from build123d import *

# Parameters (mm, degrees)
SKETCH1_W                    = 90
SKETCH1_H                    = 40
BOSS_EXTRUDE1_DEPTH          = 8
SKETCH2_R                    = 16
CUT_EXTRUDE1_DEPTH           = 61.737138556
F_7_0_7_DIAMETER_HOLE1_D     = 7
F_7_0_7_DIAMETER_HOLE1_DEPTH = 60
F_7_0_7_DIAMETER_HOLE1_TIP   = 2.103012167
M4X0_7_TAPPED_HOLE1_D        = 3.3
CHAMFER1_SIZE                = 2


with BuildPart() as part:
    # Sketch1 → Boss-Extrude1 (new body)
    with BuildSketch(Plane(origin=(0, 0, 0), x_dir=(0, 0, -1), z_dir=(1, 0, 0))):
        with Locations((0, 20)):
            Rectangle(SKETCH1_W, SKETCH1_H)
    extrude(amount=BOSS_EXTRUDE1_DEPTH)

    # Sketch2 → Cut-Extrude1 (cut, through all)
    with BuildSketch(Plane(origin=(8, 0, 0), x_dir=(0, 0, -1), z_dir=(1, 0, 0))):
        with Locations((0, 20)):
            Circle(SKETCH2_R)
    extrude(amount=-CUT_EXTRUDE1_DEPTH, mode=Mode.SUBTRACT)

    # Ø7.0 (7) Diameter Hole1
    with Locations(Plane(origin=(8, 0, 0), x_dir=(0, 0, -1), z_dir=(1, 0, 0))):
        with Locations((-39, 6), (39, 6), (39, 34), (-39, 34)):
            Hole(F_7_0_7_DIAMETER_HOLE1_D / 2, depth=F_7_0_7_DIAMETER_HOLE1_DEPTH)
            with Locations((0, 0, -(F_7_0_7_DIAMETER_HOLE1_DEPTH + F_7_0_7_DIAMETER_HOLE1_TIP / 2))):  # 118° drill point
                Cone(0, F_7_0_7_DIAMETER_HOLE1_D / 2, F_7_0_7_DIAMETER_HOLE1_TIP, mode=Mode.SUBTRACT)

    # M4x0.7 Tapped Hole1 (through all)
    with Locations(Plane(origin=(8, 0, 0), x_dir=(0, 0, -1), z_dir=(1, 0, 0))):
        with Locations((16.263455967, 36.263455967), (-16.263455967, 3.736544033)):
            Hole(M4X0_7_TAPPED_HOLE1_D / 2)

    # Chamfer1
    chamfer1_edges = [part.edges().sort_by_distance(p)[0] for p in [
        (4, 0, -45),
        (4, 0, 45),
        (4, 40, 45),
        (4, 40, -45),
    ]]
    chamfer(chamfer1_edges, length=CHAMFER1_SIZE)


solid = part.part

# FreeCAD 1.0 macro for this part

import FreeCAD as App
import Part
import Sketcher
from FreeCAD import Vector


def edges_at(feature, points):
    """Names of the edges that pass closest to the given points."""
    edges = feature.Shape.Edges
    near = lambda p: min(range(len(edges)), key=lambda i: edges[i].distToShape(Part.Vertex(*p))[0])
    return sorted({f"Edge{near(p) + 1}" for p in points})


def add_polygon(sketch, points):
    """Adds a closed chain of lines whose ends are joined by coincident constraints."""
    first, n = sketch.GeometryCount, len(points)
    for a, b in zip(points, points[1:] + points[:1]):
        sketch.addGeometry(Part.LineSegment(App.Vector(*a, 0), App.Vector(*b, 0)), False)
    for i in range(n):
        sketch.addConstraint(Sketcher.Constraint("Coincident", first + i, 2, first + (i + 1) % n, 1))

doc = App.newDocument("Part")
body = doc.addObject("PartDesign::Body", "Body")

sketch1 = body.newObject("Sketcher::SketchObject", "Sketch")
sketch1.AttachmentSupport = (doc.getObject("YZ_Plane"), [""])
sketch1.MapMode = "FlatFace"
add_polygon(sketch1, [(40, 45), (0, 45), (0, -45), (40, -45)])
sketch1.addConstraint(Sketcher.Constraint("Horizontal", 0))
sketch1.addConstraint(Sketcher.Constraint("Vertical", 1))
sketch1.addConstraint(Sketcher.Constraint("Horizontal", 2))
sketch1.addConstraint(Sketcher.Constraint("Vertical", 3))
sketch1.addConstraint(Sketcher.Constraint("Symmetric", 0, 2, 1, 2, -1, 1))
sketch1.addConstraint(Sketcher.Constraint("DistanceX", 0, 2, 0, 1, 40.0))
sketch1.addConstraint(Sketcher.Constraint("DistanceY", 1, 2, 1, 1, 90.0))
pad1 = body.newObject("PartDesign::Pad", "Pad")
pad1.Profile = sketch1
pad1.Length = 8

sketch2 = body.newObject("Sketcher::SketchObject", "Sketch001")
sketch2.AttachmentSupport = (doc.getObject("YZ_Plane"), [""])
sketch2.MapMode = "FlatFace"
sketch2.AttachmentOffset = App.Placement(Vector(0, 0, 8), App.Rotation())
sketch2.addGeometry(Part.Circle(Vector(20, 0, 0), Vector(0, 0, 1), 16), False)
sketch2.addConstraint(Sketcher.Constraint("PointOnObject", 0, 3, -1))
sketch2.addConstraint(Sketcher.Constraint("Diameter", 0, 32.0))
sketch2.addConstraint(Sketcher.Constraint("DistanceX", -1, 1, 0, 3, 20.0))
pocket1 = body.newObject("PartDesign::Pocket", "Pocket")
pocket1.Profile = sketch2
pocket1.Type = "ThroughAll"

sketch3 = body.newObject("Sketcher::SketchObject", "Sketch002")
sketch3.AttachmentSupport = (doc.getObject("YZ_Plane"), [""])
sketch3.MapMode = "FlatFace"
sketch3.AttachmentOffset = App.Placement(Vector(0, 0, 8), App.Rotation())
sketch3.addGeometry(Part.Circle(Vector(6, 39, 0), Vector(0, 0, 1), 3.5), False)
sketch3.addGeometry(Part.Circle(Vector(6, -39, 0), Vector(0, 0, 1), 3.5), False)
sketch3.addGeometry(Part.Circle(Vector(34, -39, 0), Vector(0, 0, 1), 3.5), False)
sketch3.addGeometry(Part.Circle(Vector(34, 39, 0), Vector(0, 0, 1), 3.5), False)
sketch3.addConstraint(Sketcher.Constraint("Equal", 0, 1))
sketch3.addConstraint(Sketcher.Constraint("Equal", 1, 2))
sketch3.addConstraint(Sketcher.Constraint("Equal", 2, 3))
sketch3.addConstraint(Sketcher.Constraint("Symmetric", 0, 3, 1, 3, -1))
sketch3.addConstraint(Sketcher.Constraint("Symmetric", 2, 3, 3, 3, -1))
sketch3.addConstraint(Sketcher.Constraint("Horizontal", 1, 3, 2, 3))
sketch3.addConstraint(Sketcher.Constraint("Diameter", 0, 7.0))
sketch3.addConstraint(Sketcher.Constraint("DistanceX", -1, 1, 0, 3, 6.0))
sketch3.addConstraint(Sketcher.Constraint("DistanceY", -1, 1, 0, 3, 39.0))
sketch3.addConstraint(Sketcher.Constraint("DistanceX", -1, 1, 2, 3, 34.0))
doc.recompute()
hole = body.newObject("PartDesign::Hole", "Hole")
hole.Profile = sketch3
hole.ThreadType = "None"
hole.Diameter = 7
hole.DepthType = "Dimension"
hole.Depth = 60
hole.DrillPoint = "Angled"
hole.DrillPointAngle = 118

sketch4 = body.newObject("Sketcher::SketchObject", "Sketch003")
sketch4.AttachmentSupport = (doc.getObject("YZ_Plane"), [""])
sketch4.MapMode = "FlatFace"
sketch4.AttachmentOffset = App.Placement(Vector(0, 0, 8), App.Rotation())
sketch4.addGeometry(Part.Circle(Vector(36.3, -16.3, 0), Vector(0, 0, 1), 1.6), False)
sketch4.addGeometry(Part.Circle(Vector(3.7, 16.3, 0), Vector(0, 0, 1), 1.6), False)
sketch4.addConstraint(Sketcher.Constraint("Equal", 0, 1))
sketch4.addConstraint(Sketcher.Constraint("Diameter", 0, 3.3))
sketch4.addConstraint(Sketcher.Constraint("DistanceX", 1, 3, 0, 3, 32.526912))
sketch4.addConstraint(Sketcher.Constraint("DistanceY", 0, 3, 1, 3, 32.526912))
sketch4.addConstraint(Sketcher.Constraint("DistanceX", -1, 1, 0, 3, 36.263456))
sketch4.addConstraint(Sketcher.Constraint("DistanceY", 0, 3, -1, 1, 16.263456))
doc.recompute()
hole2 = body.newObject("PartDesign::Hole", "Hole001")
hole2.Profile = sketch4
hole2.ThreadType = "None"
hole2.Diameter = 3.3
hole2.DepthType = "ThroughAll"
doc.recompute()

chamfer = body.newObject("PartDesign::Chamfer", "Chamfer")
chamfer.Base = (hole2, edges_at(hole2, [
    (4, 0, -45),
    (4, 0, 45),
    (4, 40, 45),
    (4, 40, -45),
]))
chamfer.Size = 2

doc.recompute()
